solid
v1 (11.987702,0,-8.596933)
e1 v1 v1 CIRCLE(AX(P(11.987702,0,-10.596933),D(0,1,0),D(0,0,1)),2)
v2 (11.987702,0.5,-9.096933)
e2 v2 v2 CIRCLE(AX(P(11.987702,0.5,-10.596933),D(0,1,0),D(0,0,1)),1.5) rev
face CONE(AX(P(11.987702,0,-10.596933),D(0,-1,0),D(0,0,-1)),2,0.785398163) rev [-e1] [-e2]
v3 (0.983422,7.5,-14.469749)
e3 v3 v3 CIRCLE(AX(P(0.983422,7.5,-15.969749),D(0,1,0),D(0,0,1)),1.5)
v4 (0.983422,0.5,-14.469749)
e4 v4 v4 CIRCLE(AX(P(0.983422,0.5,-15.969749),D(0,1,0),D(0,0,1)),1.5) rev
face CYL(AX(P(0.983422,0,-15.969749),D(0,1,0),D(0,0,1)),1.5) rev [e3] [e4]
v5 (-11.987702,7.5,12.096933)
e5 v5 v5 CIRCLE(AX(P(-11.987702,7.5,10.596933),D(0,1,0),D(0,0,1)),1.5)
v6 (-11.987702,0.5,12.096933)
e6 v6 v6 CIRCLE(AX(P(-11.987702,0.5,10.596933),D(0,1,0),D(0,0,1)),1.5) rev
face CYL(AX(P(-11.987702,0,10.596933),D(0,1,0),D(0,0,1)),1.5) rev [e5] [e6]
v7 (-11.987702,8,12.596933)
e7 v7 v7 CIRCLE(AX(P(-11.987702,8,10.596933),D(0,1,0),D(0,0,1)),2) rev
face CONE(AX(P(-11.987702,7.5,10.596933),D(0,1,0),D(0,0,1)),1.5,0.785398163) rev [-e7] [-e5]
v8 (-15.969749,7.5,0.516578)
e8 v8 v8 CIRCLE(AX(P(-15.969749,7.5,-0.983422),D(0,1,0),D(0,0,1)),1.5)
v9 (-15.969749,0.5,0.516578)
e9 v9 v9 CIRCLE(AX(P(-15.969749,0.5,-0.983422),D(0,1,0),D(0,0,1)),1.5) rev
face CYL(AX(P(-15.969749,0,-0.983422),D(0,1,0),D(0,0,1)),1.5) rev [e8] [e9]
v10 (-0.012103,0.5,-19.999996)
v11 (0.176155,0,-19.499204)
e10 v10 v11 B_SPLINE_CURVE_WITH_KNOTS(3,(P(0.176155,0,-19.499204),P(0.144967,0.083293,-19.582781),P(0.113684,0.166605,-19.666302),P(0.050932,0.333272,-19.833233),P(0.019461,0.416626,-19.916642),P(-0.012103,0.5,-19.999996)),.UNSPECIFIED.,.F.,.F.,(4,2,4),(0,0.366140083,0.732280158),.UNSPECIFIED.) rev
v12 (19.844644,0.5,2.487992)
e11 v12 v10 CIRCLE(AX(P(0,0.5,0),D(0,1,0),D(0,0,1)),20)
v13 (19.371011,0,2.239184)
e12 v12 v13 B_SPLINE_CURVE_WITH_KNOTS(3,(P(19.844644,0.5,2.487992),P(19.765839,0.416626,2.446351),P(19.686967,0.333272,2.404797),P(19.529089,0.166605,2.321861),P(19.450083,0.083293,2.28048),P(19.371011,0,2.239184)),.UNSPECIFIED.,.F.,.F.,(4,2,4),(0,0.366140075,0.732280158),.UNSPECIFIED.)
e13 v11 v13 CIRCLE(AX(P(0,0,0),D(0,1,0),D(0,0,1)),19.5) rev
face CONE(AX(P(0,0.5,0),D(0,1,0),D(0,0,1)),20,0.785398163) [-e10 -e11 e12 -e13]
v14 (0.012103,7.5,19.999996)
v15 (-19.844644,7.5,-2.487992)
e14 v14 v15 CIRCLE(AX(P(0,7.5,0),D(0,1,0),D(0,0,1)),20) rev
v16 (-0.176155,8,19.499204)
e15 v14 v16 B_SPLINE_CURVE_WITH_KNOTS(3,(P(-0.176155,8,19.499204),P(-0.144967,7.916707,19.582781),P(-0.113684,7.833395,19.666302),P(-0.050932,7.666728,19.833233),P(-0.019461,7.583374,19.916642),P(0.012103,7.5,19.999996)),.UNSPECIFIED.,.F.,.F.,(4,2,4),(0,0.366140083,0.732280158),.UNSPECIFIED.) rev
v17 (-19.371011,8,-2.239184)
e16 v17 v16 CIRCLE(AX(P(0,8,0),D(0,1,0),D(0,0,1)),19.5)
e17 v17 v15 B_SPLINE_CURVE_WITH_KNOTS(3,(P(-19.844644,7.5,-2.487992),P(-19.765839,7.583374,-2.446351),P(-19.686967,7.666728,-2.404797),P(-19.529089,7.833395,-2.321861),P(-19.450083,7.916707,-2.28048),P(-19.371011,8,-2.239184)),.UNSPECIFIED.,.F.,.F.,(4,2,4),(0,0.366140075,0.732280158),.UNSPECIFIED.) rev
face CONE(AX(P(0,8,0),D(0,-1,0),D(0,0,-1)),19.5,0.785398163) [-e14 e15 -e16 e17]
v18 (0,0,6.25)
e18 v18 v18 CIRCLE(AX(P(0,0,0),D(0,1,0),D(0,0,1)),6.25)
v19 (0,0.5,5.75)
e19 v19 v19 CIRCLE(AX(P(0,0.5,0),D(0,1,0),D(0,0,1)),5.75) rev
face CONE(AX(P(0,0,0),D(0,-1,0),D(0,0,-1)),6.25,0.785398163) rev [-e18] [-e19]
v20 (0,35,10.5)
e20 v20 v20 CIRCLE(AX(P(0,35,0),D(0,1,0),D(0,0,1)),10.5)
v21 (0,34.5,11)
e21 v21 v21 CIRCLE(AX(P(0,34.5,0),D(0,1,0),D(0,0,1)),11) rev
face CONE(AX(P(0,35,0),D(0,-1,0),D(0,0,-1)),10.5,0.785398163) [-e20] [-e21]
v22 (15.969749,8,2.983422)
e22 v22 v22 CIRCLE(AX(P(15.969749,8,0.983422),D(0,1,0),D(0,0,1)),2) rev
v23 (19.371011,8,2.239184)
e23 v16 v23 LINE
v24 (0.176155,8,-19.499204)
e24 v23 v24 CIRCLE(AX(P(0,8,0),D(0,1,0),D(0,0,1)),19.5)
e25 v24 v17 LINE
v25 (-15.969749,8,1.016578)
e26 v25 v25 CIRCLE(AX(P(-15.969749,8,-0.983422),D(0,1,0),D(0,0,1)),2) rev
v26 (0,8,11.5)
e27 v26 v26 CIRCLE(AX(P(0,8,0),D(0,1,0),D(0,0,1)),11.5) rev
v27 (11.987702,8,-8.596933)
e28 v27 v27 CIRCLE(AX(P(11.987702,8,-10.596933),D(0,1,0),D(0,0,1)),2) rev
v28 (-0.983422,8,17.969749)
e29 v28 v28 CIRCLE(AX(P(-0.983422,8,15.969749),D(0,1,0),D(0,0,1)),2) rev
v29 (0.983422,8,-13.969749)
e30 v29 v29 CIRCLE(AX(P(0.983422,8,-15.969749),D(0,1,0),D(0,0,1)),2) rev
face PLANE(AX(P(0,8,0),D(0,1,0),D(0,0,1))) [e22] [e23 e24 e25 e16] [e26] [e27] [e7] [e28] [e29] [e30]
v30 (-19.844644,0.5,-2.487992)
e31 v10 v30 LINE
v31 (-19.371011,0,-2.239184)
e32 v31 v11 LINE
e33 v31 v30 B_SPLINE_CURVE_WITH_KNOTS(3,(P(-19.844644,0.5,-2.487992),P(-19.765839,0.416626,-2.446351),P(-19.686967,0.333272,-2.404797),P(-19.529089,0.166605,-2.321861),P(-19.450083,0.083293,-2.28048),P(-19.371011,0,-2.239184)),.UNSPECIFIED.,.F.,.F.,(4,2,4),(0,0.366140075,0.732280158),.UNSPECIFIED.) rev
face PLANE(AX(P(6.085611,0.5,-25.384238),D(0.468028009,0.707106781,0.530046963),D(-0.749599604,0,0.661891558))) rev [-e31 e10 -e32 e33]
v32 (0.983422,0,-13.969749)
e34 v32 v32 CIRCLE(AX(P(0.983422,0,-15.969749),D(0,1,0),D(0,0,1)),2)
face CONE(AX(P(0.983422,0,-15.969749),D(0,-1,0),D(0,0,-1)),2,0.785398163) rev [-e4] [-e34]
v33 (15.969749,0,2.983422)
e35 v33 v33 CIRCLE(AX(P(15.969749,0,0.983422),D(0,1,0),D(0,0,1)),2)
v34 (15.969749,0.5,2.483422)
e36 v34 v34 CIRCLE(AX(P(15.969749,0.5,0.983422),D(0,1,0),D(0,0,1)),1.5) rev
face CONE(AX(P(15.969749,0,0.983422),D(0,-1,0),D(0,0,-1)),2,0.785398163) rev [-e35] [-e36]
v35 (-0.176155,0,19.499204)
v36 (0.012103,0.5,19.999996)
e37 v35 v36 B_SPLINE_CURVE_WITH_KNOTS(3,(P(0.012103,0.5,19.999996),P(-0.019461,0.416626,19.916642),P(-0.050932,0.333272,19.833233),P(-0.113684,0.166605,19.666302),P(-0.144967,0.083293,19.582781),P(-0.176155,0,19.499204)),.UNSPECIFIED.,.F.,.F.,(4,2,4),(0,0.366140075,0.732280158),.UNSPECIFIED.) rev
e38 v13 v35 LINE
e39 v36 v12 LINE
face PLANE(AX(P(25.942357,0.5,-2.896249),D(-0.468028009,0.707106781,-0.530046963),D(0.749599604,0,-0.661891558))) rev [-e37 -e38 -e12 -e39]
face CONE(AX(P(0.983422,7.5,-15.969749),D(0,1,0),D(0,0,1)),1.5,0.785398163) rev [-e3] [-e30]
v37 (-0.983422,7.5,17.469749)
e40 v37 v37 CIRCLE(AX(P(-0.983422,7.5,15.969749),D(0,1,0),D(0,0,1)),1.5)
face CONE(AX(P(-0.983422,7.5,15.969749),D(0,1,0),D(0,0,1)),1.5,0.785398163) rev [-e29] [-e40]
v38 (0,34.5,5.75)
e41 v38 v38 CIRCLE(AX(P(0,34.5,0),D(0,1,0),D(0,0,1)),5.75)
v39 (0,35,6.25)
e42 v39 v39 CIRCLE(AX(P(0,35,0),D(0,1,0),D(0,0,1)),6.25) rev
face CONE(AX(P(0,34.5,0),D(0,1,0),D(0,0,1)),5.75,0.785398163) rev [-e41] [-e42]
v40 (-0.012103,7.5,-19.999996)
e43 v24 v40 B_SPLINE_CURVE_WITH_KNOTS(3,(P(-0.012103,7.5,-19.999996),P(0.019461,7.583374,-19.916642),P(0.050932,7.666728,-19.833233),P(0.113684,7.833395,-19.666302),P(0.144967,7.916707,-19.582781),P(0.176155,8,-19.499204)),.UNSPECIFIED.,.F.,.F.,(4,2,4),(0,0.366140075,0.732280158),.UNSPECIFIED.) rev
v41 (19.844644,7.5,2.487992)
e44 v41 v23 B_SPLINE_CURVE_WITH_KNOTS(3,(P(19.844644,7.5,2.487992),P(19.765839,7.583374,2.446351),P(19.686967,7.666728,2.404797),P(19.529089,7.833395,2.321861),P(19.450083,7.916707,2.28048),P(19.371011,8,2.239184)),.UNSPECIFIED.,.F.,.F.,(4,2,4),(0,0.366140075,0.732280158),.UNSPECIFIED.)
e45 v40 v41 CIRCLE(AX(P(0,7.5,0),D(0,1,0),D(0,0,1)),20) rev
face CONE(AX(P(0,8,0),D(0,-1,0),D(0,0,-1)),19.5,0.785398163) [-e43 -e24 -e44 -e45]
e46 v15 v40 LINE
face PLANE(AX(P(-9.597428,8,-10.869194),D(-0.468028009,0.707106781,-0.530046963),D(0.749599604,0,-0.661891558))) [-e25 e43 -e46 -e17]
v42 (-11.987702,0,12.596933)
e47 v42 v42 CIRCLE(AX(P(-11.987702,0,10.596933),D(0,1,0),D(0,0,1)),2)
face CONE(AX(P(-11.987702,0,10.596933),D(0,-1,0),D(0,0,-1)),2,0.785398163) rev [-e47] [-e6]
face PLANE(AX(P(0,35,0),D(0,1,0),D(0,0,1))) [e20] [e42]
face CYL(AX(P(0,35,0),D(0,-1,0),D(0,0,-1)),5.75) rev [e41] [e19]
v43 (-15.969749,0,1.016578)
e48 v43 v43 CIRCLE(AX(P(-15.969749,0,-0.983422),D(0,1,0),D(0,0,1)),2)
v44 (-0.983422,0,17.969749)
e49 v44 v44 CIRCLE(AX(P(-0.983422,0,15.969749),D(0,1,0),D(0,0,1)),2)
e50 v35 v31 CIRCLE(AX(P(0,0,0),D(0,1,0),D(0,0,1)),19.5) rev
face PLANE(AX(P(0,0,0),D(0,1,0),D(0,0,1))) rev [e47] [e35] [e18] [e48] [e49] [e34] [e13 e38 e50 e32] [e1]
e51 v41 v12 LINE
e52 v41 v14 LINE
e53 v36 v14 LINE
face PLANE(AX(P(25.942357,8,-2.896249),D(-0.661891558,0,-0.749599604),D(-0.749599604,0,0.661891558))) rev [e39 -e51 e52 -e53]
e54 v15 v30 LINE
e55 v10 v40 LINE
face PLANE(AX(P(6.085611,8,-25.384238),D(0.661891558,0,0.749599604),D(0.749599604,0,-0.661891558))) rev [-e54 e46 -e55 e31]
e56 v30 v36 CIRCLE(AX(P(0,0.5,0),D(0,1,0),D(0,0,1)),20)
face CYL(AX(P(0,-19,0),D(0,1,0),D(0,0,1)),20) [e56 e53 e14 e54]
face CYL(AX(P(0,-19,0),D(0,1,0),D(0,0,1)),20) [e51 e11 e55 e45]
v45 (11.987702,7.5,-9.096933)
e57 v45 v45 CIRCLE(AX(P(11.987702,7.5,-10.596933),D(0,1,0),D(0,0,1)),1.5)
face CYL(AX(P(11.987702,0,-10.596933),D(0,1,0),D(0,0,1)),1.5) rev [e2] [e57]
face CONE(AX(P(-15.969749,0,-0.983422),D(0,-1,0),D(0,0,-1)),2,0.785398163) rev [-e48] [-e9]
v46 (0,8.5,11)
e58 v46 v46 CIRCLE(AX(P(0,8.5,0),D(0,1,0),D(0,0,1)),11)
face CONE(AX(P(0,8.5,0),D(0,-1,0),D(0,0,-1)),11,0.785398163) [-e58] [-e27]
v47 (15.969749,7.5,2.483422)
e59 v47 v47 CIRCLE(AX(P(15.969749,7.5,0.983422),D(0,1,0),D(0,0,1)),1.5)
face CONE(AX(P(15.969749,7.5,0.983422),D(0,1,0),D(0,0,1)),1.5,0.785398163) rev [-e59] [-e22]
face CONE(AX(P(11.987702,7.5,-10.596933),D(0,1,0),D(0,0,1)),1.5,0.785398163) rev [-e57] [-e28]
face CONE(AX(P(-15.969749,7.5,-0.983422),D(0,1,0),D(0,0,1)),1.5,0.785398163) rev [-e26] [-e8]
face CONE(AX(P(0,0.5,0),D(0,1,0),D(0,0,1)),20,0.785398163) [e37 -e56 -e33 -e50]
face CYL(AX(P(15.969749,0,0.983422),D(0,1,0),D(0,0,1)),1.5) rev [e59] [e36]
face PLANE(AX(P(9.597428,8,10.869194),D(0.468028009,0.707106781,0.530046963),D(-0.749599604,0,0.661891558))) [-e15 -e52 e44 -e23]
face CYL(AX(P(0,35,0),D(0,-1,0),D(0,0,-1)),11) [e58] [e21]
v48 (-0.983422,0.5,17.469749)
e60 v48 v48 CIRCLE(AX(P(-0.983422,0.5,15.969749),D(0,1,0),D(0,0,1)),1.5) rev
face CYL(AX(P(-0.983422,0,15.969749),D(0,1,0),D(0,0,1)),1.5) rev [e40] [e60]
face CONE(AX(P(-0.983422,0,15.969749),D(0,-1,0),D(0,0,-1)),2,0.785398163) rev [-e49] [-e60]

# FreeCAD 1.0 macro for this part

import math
import FreeCAD as App
import Part
import Sketcher

V = App.Vector


def edges_at(feature, points):
    """Names of the edges that pass closest to the given points."""
    edges = feature.Shape.Edges
    near = lambda p: min(range(len(edges)), key=lambda i: edges[i].distToShape(Part.Vertex(*p))[0])
    return sorted({f"Edge{near(p) + 1}" for p in points})

doc = App.newDocument("Part")
body = doc.addObject("PartDesign::Body", "Body")

sketch1 = body.newObject("Sketcher::SketchObject", "Sketch")
sketch1.AttachmentSupport = (doc.getObject("XZ_Plane"), [""])
sketch1.MapMode = "FlatFace"
sketch1.addGeometry([
    Part.LineSegment(V(6.085611, -25.384238, 0), V(-25.942357, 2.896249, 0)),
    Part.ArcOfCircle(Part.Circle(V(0, 0, 0), V(0, 0, 1), 26.103528), math.radians(103.481633), math.radians(173.629779)),
    Part.LineSegment(V(-6.085611, 25.384238, 0), V(25.942357, -2.896249, 0)),
    Part.ArcOfCircle(Part.Circle(V(0, 0, 0), V(0, 0, 1), 26.103528), math.radians(-76.518367), math.radians(-6.370221)),
], False)
sketch1.addConstraint([
    Sketcher.Constraint("Coincident", 0, 2, 1, 2),
    Sketcher.Constraint("Coincident", 1, 1, 2, 1),
    Sketcher.Constraint("Coincident", 2, 2, 3, 2),
    Sketcher.Constraint("Coincident", 3, 1, 0, 1),
    Sketcher.Constraint("Coincident", 1, 3, -1, 1),
    Sketcher.Constraint("Coincident", 3, 3, -1, 1),
    Sketcher.Constraint("Equal", 1, 3),
    Sketcher.Constraint("Parallel", 0, 2),
    Sketcher.Constraint("Equal", 0, 2),
    Sketcher.Constraint("Radius", 1, 26.103528),
    Sketcher.Constraint("DistanceY", 2, 2, 0, 2, 5.792499),
    Sketcher.Constraint("DistanceX", 1, 1, -1, 1, 6.085611),
])
pad1 = body.newObject("PartDesign::Pad", "Pad")
pad1.Profile = sketch1
pad1.Length = 8
pad1.Reversed = True

sketch2 = body.newObject("Sketcher::SketchObject", "Sketch001")
sketch2.AttachmentSupport = (doc.getObject("XZ_Plane"), [""])
sketch2.MapMode = "FlatFace"
sketch2.AttachmentOffset = App.Placement(V(0, 0, -8), App.Rotation())
sketch2.addGeometry([
    Part.Circle(V(0, 0, 0), V(0, 0, 1), 11),
    Part.Circle(V(0, 0, 0), V(0, 0, 1), 5.75),
], False)
sketch2.addConstraint([
    Sketcher.Constraint("Coincident", 0, 3, -1, 1),
    Sketcher.Constraint("Coincident", 1, 3, -1, 1),
    Sketcher.Constraint("Diameter", 0, 22.0),
    Sketcher.Constraint("Diameter", 1, 11.5),
])
pad2 = body.newObject("PartDesign::Pad", "Pad001")
pad2.Profile = sketch2
pad2.Length = 27
pad2.Reversed = True

sketch3 = body.newObject("Sketcher::SketchObject", "Sketch002")
sketch3.AttachmentSupport = (doc.getObject("XZ_Plane"), [""])
sketch3.MapMode = "FlatFace"
sketch3.AttachmentOffset = App.Placement(V(0, 0, 19), App.Rotation())
sketch3.addGeometry(Part.Circle(V(0, 0, 0), V(0, 0, 1), 5.75), False)
sketch3.addConstraint([
    Sketcher.Constraint("Coincident", 0, 3, -1, 1),
    Sketcher.Constraint("Diameter", 0, 11.5),
])
pocket1 = body.newObject("PartDesign::Pocket", "Pocket")
pocket1.Profile = sketch3
pocket1.Length = 27

sketch4 = body.newObject("Sketcher::SketchObject", "Sketch003")
sketch4.AttachmentSupport = (doc.getObject("XZ_Plane"), [""])
sketch4.MapMode = "FlatFace"
sketch4.AttachmentOffset = App.Placement(V(0, 0, -8), App.Rotation())
sketch4.addGeometry([
    Part.Circle(V(0, 0, 0), V(0, 0, 1), 43.168144),
    Part.Circle(V(0, 0, 0), V(0, 0, 1), 20),
], False)
sketch4.addConstraint([
    Sketcher.Constraint("Coincident", 0, 3, -1, 1),
    Sketcher.Constraint("Coincident", 1, 3, -1, 1),
    Sketcher.Constraint("Diameter", 1, 40.0),
    Sketcher.Constraint("Diameter", 0, 86.336287),
])
pocket2 = body.newObject("PartDesign::Pocket", "Pocket001")
pocket2.Profile = sketch4
pocket2.Length = 27
pocket2.Reversed = True

sketch5 = body.newObject("Sketcher::SketchObject", "Sketch004")
sketch5.AttachmentSupport = (doc.getObject("XZ_Plane"), [""])
sketch5.MapMode = "FlatFace"
sketch5.AttachmentOffset = App.Placement(V(0, 0, -8), App.Rotation())
sketch5.addGeometry([
    Part.Circle(V(0.983422, -15.969749, 0), V(0, 0, 1), 1.5),
    Part.Circle(V(11.987702, -10.596933, 0), V(0, 0, 1), 1.5),
    Part.Circle(V(15.969749, 0.983422, 0), V(0, 0, 1), 1.5),
    Part.Circle(V(-0.983422, 15.969749, 0), V(0, 0, 1), 1.5),
    Part.Circle(V(-11.987702, 10.596933, 0), V(0, 0, 1), 1.5),
    Part.Circle(V(-15.969749, -0.983422, 0), V(0, 0, 1), 1.5),
], False)
sketch5.addConstraint([
    Sketcher.Constraint("Equal", 0, 1),
    Sketcher.Constraint("Equal", 1, 2),
    Sketcher.Constraint("Equal", 2, 3),
    Sketcher.Constraint("Equal", 3, 4),
    Sketcher.Constraint("Equal", 4, 5),
    Sketcher.Constraint("Symmetric", 0, 3, 3, 3, -1, 1),
    Sketcher.Constraint("Symmetric", 1, 3, 4, 3, -1, 1),
    Sketcher.Constraint("Symmetric", 2, 3, 5, 3, -1, 1),
    Sketcher.Constraint("Diameter", 0, 3.0),
    Sketcher.Constraint("DistanceY", 0, 3, -1, 1, 15.969749),
    Sketcher.Constraint("DistanceX", -1, 1, 2, 3, 15.969749),
    Sketcher.Constraint("DistanceX", 0, 3, 1, 3, 11.00428),
    Sketcher.Constraint("DistanceY", 0, 3, 2, 3, 16.953171),
    Sketcher.Constraint("DistanceX", 3, 3, 2, 3, 16.953171),
    Sketcher.Constraint("DistanceY", 2, 3, 4, 3, 9.613511),
])
pocket3 = body.newObject("PartDesign::Pocket", "Pocket002")
pocket3.Profile = sketch5
pocket3.Type = "ThroughAll"
pocket3.Reversed = True
doc.recompute()

chamfer = body.newObject("PartDesign::Chamfer", "Chamfer")
chamfer.Base = (pocket3, edges_at(pocket3, [
    (0, 35, -11),
    (0, 8, -11),
    (0, 35, -5.75),
    (0, 0, -5.75),
    (9.928, 0, 11.244),
    (-9.928, 0, -11.244),
    (-14.992, 0, 13.238),
    (14.992, 0, -13.238),
    (9.928, 8, 11.244),
    (-9.928, 8, -11.244),
    (14.992, 8, -13.238),
    (-14.992, 8, 13.238),
    (0.983, 0, -17.47),
    (0.983, 8, -17.47),
    (11.988, 0, -12.097),
    (11.988, 8, -12.097),
    (15.97, 0, -0.517),
    (15.97, 8, -0.517),
    (-0.983, 0, 14.47),
    (-0.983, 8, 14.47),
    (-11.988, 0, 9.097),
    (-11.988, 8, 9.097),
    (-15.97, 0, -2.483),
    (-15.97, 8, -2.483),
]))
chamfer.Size = 0.5

doc.recompute()
